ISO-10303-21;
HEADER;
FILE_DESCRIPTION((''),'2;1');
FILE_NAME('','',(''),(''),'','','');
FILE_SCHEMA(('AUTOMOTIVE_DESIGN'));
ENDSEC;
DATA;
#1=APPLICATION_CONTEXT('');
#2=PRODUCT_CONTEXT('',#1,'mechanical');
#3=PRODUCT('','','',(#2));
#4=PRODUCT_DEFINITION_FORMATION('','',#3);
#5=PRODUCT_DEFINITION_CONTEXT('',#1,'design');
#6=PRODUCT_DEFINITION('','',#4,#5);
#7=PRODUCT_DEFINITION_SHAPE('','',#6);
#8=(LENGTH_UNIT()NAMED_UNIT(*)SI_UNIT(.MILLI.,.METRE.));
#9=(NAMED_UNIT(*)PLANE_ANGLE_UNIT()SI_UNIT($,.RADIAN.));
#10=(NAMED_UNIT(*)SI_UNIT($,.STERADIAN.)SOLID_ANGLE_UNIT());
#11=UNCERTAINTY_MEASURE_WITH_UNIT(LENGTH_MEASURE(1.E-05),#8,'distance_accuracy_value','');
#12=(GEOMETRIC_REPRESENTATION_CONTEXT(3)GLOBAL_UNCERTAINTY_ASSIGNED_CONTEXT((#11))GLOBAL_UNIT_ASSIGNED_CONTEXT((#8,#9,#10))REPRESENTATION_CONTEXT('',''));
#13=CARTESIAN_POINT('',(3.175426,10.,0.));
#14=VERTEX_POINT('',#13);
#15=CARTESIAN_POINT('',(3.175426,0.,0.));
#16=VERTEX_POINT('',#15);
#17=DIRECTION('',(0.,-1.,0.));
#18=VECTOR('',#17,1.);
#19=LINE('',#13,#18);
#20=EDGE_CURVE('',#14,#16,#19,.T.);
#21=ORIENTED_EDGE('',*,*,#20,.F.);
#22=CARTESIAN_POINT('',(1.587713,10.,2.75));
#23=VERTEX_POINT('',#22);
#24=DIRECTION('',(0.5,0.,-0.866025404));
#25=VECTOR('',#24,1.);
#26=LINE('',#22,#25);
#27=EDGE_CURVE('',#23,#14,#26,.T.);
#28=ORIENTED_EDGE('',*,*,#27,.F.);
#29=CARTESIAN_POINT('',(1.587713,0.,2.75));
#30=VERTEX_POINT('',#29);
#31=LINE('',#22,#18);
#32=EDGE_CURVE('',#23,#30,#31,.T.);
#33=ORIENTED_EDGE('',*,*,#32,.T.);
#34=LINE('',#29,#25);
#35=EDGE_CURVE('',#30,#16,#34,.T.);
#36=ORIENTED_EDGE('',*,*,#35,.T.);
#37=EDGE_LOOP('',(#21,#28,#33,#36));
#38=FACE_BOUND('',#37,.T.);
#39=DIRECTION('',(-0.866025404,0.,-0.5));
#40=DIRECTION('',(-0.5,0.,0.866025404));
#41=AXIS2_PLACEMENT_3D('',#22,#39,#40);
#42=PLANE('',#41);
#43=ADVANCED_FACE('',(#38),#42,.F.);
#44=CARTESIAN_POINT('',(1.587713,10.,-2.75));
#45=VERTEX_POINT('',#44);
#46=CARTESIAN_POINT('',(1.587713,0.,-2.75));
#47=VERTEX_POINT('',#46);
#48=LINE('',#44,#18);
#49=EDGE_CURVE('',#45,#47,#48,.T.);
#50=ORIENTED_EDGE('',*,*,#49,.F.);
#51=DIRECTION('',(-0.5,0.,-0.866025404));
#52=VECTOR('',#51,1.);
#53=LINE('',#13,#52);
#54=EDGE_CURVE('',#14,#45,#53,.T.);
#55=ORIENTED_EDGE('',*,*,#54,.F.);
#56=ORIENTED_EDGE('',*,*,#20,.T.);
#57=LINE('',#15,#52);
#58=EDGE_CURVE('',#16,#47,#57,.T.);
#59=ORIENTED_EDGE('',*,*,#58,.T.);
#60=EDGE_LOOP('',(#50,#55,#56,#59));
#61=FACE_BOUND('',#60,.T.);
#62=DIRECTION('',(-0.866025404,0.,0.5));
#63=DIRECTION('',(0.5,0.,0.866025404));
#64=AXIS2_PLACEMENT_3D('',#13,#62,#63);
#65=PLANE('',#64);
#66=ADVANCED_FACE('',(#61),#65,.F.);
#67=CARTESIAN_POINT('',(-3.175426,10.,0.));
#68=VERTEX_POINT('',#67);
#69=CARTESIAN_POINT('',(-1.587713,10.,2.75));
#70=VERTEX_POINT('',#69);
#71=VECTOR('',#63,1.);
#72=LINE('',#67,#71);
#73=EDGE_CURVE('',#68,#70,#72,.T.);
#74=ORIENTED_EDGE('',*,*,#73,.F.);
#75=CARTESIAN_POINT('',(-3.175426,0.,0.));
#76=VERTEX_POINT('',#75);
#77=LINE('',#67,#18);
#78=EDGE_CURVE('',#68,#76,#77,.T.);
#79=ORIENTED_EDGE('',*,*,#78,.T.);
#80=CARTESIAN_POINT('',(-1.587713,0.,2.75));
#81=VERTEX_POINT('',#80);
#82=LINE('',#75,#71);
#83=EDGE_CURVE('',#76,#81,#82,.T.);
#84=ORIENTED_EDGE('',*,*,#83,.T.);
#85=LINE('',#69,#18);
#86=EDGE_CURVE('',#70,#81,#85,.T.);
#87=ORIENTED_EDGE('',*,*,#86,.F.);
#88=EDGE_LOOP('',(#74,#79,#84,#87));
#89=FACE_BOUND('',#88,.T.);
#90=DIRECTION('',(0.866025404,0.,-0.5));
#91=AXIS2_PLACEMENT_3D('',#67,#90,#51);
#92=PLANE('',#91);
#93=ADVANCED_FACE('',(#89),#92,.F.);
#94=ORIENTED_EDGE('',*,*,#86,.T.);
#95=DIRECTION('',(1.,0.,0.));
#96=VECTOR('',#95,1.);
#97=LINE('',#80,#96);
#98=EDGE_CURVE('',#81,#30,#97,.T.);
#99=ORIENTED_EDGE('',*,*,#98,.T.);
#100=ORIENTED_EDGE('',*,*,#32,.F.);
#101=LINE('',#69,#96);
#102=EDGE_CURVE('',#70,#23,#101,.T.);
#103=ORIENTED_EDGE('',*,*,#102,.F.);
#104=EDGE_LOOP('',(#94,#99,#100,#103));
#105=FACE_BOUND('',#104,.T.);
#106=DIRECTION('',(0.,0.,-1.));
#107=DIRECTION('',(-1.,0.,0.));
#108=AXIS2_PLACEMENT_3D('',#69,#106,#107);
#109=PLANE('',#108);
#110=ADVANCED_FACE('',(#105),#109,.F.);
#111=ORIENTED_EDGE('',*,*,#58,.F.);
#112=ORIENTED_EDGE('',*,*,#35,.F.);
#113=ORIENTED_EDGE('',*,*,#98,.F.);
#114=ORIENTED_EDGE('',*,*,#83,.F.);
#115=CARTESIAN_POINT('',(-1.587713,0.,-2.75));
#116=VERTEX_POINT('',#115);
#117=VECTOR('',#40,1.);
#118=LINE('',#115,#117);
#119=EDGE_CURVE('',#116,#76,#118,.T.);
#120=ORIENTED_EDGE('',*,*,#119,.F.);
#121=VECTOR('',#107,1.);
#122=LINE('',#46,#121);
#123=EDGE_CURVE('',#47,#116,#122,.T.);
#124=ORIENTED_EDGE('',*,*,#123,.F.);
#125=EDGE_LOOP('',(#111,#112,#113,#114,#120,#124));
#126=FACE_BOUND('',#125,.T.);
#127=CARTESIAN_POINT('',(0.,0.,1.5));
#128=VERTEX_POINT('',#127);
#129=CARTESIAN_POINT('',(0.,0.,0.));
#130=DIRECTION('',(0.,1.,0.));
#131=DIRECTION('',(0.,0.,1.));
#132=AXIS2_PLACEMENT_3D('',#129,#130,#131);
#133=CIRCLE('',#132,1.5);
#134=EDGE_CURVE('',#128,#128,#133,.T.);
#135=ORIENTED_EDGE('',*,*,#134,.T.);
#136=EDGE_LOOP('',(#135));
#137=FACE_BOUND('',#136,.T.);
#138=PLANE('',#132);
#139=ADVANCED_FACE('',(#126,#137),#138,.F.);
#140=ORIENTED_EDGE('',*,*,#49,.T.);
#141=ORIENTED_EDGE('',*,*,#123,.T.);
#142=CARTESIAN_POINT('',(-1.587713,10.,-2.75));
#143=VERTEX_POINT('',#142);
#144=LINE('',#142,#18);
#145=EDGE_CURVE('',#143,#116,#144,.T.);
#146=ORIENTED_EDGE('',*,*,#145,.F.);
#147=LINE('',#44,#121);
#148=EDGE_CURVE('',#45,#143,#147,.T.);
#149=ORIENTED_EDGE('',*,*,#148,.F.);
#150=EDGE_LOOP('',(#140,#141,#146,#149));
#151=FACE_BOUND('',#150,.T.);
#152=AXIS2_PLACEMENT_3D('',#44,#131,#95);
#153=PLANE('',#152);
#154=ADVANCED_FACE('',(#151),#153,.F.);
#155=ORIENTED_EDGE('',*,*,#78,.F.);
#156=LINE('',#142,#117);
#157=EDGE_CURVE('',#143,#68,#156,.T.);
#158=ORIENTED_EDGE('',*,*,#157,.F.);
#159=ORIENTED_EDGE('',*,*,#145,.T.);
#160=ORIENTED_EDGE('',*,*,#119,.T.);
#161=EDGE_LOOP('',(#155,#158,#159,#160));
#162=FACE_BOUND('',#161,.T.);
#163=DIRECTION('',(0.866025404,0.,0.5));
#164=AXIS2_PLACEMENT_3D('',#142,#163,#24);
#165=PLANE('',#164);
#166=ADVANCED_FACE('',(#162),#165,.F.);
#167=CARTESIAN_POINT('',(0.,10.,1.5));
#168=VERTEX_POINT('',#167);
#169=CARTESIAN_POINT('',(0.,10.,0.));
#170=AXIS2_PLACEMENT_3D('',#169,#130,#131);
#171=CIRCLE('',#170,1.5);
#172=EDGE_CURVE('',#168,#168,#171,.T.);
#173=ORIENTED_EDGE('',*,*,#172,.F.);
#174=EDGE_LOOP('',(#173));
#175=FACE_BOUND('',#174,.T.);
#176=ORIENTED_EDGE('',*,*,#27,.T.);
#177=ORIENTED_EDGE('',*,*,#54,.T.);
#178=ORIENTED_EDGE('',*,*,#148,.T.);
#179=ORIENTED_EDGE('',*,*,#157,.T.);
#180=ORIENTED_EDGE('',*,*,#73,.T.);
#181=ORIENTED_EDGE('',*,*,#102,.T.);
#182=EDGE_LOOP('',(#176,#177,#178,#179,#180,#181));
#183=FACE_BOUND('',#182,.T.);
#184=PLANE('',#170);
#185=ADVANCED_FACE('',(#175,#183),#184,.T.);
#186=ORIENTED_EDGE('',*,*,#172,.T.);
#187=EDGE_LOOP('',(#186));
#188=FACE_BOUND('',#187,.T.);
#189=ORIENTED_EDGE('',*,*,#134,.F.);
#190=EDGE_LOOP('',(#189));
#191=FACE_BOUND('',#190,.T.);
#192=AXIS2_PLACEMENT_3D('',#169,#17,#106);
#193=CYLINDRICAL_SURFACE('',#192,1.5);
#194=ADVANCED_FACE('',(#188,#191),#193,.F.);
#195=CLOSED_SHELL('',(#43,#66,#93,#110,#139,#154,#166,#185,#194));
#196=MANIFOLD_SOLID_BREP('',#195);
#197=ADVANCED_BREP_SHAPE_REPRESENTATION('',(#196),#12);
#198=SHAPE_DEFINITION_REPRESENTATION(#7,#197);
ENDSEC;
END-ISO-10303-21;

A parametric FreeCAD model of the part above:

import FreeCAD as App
import Part
import Sketcher
from FreeCAD import Vector
Q = App.Units.Quantity

doc = App.newDocument("Part")
body = doc.addObject("PartDesign::Body", "Body")

# Sketch on XZ plane
sketch1 = doc.addObject("Sketcher::SketchObject", "Sketch")
body.addObject(sketch1)
sketch1.AttachmentSupport = (doc.XZ_Plane, [""])
sketch1.MapMode = "FlatFace"
sketch1.addGeometry([
    Part.LineSegment(Vector(3.2, 0, 0), Vector(1.6, -2.8, 0)),  # 0
    Part.LineSegment(Vector(1.6, -2.8, 0), Vector(-1.6, -2.8, 0)),  # 1
    Part.LineSegment(Vector(-1.6, -2.8, 0), Vector(-3.2, 0, 0)),  # 2
    Part.LineSegment(Vector(-3.2, 0, 0), Vector(-1.6, 2.8, 0)),  # 3
    Part.LineSegment(Vector(-1.6, 2.8, 0), Vector(1.6, 2.8, 0)),  # 4
    Part.LineSegment(Vector(1.6, 2.8, 0), Vector(3.2, 0, 0)),  # 5
    Part.Circle(Vector(0, 0, 0), Vector(0, 0, 1), 1.5),  # 6
], False)
sketch1.addConstraint([
    Sketcher.Constraint("Coincident", 0, 2, 1, 1),
    Sketcher.Constraint("Coincident", 1, 2, 2, 1),
    Sketcher.Constraint("Coincident", 2, 2, 3, 1),
    Sketcher.Constraint("Coincident", 3, 2, 4, 1),
    Sketcher.Constraint("Coincident", 4, 2, 5, 1),
    Sketcher.Constraint("Coincident", 5, 2, 0, 1),
    Sketcher.Constraint("Horizontal", 1),
    Sketcher.Constraint("Horizontal", 4),
    Sketcher.Constraint("Coincident", 6, 3, -1, 1),
    Sketcher.Constraint("Symmetric", 0, 2, 3, 2, -1, 1),
    Sketcher.Constraint("Symmetric", 2, 2, 5, 2, -1, 1),
    Sketcher.Constraint("PointOnObject", 2, 2, -1),
    Sketcher.Constraint("Parallel", 2, 5),
    Sketcher.Constraint("Vertical", 1, 2, 3, 2),
    Sketcher.Constraint("Diameter", 6, 3.0),
    Sketcher.Constraint("Angle", 0, Q("-120 deg")),
    Sketcher.Constraint("DistanceY", 1, 2, 3, 2, 5.5),
    Sketcher.Constraint("DistanceX", 1, 2, 1, 1, 3.175426),
])
pad1 = doc.addObject("PartDesign::Pad", "Pad")
body.addObject(pad1)
pad1.Profile = sketch1
pad1.Length = 10
pad1.Reversed = True

doc.recompute()
